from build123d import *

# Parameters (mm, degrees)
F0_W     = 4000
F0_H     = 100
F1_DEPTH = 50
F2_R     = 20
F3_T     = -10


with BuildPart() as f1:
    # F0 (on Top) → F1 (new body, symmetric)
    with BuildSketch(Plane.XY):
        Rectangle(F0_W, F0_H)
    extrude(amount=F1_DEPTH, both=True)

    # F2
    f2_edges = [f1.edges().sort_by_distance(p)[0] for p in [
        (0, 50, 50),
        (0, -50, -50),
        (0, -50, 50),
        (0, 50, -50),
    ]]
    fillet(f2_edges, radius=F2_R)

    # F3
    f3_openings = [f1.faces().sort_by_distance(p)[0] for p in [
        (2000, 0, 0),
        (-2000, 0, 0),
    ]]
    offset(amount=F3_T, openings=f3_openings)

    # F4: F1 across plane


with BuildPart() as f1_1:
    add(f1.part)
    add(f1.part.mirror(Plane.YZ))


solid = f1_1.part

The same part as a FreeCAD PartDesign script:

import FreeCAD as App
import Part
import Sketcher
Q = App.Units.Quantity


def edges_at(feature, points):
    """Names of the edges that pass closest to the given points."""
    edges = feature.Shape.Edges
    near = lambda p: min(range(len(edges)), key=lambda i: edges[i].distToShape(Part.Vertex(*p))[0])
    return sorted({f"Edge{near(p) + 1}" for p in points})


def faces_at(feature, points):
    """Names of the faces that lie closest to the given points."""
    faces = feature.Shape.Faces
    near = lambda p: min(range(len(faces)), key=lambda i: faces[i].distToShape(Part.Vertex(*p))[0])
    return sorted({f"Face{near(p) + 1}" for p in points})


def add_polygon(sketch, points):
    """Adds a closed chain of lines whose ends are joined by coincident constraints."""
    first, n = sketch.GeometryCount, len(points)
    for a, b in zip(points, points[1:] + points[:1]):
        sketch.addGeometry(Part.LineSegment(App.Vector(*a, 0), App.Vector(*b, 0)), False)
    for i in range(n):
        sketch.addConstraint(Sketcher.Constraint("Coincident", first + i, 2, first + (i + 1) % n, 1))

doc = App.newDocument("Part")
body = doc.addObject("PartDesign::Body", "Body")

sketch1 = body.newObject("Sketcher::SketchObject", "Sketch")
sketch1.AttachmentSupport = (doc.getObject("XY_Plane"), [""])
sketch1.MapMode = "FlatFace"
add_polygon(sketch1, [(-2000, 50), (-2000, -50), (2000, -50), (2000, 50)])
sketch1.addConstraint(Sketcher.Constraint("Vertical", 0))
sketch1.addConstraint(Sketcher.Constraint("Horizontal", 1))
sketch1.addConstraint(Sketcher.Constraint("Vertical", 2))
sketch1.addConstraint(Sketcher.Constraint("Horizontal", 3))
sketch1.addConstraint(Sketcher.Constraint("Symmetric", 0, 2, 2, 2, -1, 1))
sketch1.addConstraint(Sketcher.Constraint("DistanceX", 1, 1, 1, 2, Q("4000 mm")))
sketch1.addConstraint(Sketcher.Constraint("DistanceY", 0, 2, 0, 1, Q("100 mm")))
pad1 = body.newObject("PartDesign::Pad", "Pad")
pad1.Profile = sketch1
pad1.Length = 100
pad1.Midplane = True
doc.recompute()

fillet = body.newObject("PartDesign::Fillet", "Fillet")
fillet.Base = (pad1, edges_at(pad1, [
    (0, 50, 50),
    (0, -50, -50),
    (0, -50, 50),
    (0, 50, -50),
]))
fillet.Radius = 20
doc.recompute()

thickness = body.newObject("PartDesign::Thickness", "Thickness")
thickness.Base = (fillet, faces_at(fillet, [(2000, 0, 0), (-2000, 0, 0)]))
thickness.Value = 10
thickness.Reversed = True
thickness.Join = "Arc"
body2 = doc.addObject("PartDesign::Body", "Body001")
doc.recompute()

body2.BaseFeature = body
doc.recompute()

mirroring = doc.addObject("Part::Mirroring", "Mirroring")
mirroring.Source = body
mirroring.Base = App.Vector(0, 0, 0)
mirroring.Normal = App.Vector(1, 0, 0)
body3 = doc.addObject("PartDesign::Body", "Body002")
body3.BaseFeature = mirroring
boolean = body2.newObject("PartDesign::Boolean", "Boolean")
boolean.Type = "Fuse"
boolean.addObjects([body3])
doc.recompute()
mirroring.Visibility = False

doc.recompute()
